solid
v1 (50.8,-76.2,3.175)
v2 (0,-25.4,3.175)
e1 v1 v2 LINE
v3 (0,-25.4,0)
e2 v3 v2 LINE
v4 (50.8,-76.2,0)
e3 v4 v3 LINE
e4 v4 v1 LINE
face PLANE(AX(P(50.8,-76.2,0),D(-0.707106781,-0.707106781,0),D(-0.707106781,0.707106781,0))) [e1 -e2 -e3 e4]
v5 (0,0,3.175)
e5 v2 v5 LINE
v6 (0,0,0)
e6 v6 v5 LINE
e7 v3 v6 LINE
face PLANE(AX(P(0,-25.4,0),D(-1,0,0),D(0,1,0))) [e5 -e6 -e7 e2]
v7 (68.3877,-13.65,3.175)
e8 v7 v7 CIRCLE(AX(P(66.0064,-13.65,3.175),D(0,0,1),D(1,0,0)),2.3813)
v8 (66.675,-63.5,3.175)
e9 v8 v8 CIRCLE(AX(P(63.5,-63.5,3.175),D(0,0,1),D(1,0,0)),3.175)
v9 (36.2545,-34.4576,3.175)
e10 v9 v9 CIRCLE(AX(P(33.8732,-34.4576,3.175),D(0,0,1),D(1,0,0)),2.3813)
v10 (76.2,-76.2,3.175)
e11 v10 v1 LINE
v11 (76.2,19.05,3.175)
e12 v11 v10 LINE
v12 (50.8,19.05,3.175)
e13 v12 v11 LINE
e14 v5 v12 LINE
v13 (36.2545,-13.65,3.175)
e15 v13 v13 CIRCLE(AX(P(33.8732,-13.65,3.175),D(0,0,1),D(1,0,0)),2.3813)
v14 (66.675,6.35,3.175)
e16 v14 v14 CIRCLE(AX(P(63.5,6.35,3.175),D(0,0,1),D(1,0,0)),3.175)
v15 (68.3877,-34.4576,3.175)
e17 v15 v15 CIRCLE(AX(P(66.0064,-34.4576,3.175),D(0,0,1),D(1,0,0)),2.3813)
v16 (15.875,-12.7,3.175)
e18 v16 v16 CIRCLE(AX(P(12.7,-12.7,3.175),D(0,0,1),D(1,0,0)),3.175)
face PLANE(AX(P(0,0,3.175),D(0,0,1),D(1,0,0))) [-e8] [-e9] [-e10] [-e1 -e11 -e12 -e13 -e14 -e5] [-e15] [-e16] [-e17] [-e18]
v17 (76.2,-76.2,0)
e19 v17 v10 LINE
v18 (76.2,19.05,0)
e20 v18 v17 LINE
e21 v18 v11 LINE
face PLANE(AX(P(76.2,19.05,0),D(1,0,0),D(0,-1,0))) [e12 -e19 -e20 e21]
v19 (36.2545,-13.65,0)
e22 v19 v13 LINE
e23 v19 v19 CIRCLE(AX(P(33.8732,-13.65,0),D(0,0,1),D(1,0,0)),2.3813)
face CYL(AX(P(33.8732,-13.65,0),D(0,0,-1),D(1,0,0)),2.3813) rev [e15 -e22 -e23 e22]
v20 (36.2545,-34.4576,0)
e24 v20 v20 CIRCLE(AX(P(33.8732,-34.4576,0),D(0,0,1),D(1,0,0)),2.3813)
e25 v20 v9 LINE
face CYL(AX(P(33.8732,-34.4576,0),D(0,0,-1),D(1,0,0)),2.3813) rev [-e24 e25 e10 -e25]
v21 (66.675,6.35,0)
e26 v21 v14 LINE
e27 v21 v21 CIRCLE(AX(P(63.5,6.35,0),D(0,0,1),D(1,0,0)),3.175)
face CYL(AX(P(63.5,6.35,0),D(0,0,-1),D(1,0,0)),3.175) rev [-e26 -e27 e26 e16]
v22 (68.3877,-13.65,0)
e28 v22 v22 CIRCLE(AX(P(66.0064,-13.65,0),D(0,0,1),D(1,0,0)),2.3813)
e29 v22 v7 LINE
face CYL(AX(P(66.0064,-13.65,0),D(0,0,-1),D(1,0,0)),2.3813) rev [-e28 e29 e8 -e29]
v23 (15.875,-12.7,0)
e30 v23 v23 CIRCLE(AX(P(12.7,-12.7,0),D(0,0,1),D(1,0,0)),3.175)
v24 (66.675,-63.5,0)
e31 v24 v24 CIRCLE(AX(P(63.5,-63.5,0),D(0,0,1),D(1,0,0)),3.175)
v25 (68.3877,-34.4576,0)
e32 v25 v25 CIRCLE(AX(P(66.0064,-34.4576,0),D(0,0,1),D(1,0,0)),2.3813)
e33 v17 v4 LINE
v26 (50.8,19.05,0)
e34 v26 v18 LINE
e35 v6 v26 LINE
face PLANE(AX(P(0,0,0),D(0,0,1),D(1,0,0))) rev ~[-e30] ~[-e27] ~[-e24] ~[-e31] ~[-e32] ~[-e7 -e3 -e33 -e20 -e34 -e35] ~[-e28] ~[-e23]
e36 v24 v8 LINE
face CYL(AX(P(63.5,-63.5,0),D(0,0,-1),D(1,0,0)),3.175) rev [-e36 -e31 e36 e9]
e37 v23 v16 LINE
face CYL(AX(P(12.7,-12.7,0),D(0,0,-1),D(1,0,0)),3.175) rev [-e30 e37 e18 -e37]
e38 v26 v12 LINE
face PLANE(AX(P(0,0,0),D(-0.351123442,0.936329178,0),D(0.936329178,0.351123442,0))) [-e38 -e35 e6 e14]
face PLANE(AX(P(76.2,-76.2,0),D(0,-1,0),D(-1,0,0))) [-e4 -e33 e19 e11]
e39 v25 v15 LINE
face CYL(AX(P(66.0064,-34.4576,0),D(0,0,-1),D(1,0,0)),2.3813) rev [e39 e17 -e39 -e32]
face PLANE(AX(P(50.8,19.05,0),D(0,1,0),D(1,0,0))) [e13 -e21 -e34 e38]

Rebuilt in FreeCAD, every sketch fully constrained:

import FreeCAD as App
import Part
import Sketcher
Q = App.Units.Quantity


def add_polygon(sketch, points):
    """Adds a closed chain of lines whose ends are joined by coincident constraints."""
    first, n = sketch.GeometryCount, len(points)
    for a, b in zip(points, points[1:] + points[:1]):
        sketch.addGeometry(Part.LineSegment(App.Vector(*a, 0), App.Vector(*b, 0)), False)
    for i in range(n):
        sketch.addConstraint(Sketcher.Constraint("Coincident", first + i, 2, first + (i + 1) % n, 1))

doc = App.newDocument("Part")
body = doc.addObject("PartDesign::Body", "Body")

# Sketch on XY plane
sketch1 = body.newObject("Sketcher::SketchObject", "Sketch")
sketch1.AttachmentSupport = (doc.getObject("XY_Plane"), [""])
sketch1.MapMode = "FlatFace"
add_polygon(sketch1, [(50.8, 19.05), (0, 0), (0, -25.4), (50.8, -76.2), (76.2, -76.2), (76.2, 19.05)])  # lines 0-5
sketch1.addGeometry(Part.Circle(App.Vector(33.8732, -34.4576, 0), App.Vector(0, 0, 1), 2.3813), False)  # 6
sketch1.addGeometry(Part.Circle(App.Vector(63.5, -63.5, 0), App.Vector(0, 0, 1), 3.175), False)  # 7
sketch1.addGeometry(Part.Circle(App.Vector(66.0064, -34.4576, 0), App.Vector(0, 0, 1), 2.3813), False)  # 8
sketch1.addGeometry(Part.Circle(App.Vector(12.7, -12.7, 0), App.Vector(0, 0, 1), 3.175), False)  # 9
sketch1.addGeometry(Part.Circle(App.Vector(33.8732, -13.65, 0), App.Vector(0, 0, 1), 2.3813), False)  # 10
sketch1.addGeometry(Part.Circle(App.Vector(66.0064, -13.65, 0), App.Vector(0, 0, 1), 2.3813), False)  # 11
sketch1.addGeometry(Part.Circle(App.Vector(63.5, 6.35, 0), App.Vector(0, 0, 1), 3.175), False)  # 12
sketch1.addConstraint([
    Sketcher.Constraint("Vertical", 1),
    Sketcher.Constraint("Horizontal", 3),
    Sketcher.Constraint("Vertical", 4),
    Sketcher.Constraint("Horizontal", 5),
    Sketcher.Constraint("Coincident", 0, 2, -1, 1),
    Sketcher.Constraint("Equal", 6, 8),
    Sketcher.Constraint("Equal", 7, 9),
    Sketcher.Constraint("Equal", 8, 10),
    Sketcher.Constraint("Equal", 10, 11),
    Sketcher.Constraint("Equal", 9, 12),
    Sketcher.Constraint("Horizontal", 6, 3, 8, 3),
    Sketcher.Constraint("Horizontal", 10, 3, 11, 3),
    Sketcher.Constraint("Vertical", 6, 3, 10, 3),
    Sketcher.Constraint("Vertical", 8, 3, 11, 3),
    Sketcher.Constraint("Vertical", 7, 3, 12, 3),
    Sketcher.Constraint("Vertical", 2, 2, 5, 2),
    Sketcher.Constraint("Equal", 5, 1),
    Sketcher.Constraint("Diameter", 7, Q("0.25 in")),
    Sketcher.Constraint("DistanceX", 3, 1, 3, 2, Q("1 in")),
    Sketcher.Constraint("Diameter", 6, Q("0.1875 in")),
    Sketcher.Constraint("DistanceY", 2, 2, -1, 1, Q("3 in")),
    Sketcher.Constraint("DistanceX", -1, 1, 3, 2, Q("3 in")),
    Sketcher.Constraint("DistanceY", 4, 1, 4, 2, Q("3.75 in")),
    Sketcher.Constraint("DistanceX", -1, 1, 9, 3, Q("0.5 in")),
    Sketcher.Constraint("DistanceY", 9, 3, -1, 1, Q("0.5 in")),
    Sketcher.Constraint("DistanceX", 2, 2, 7, 3, Q("0.5 in")),
    Sketcher.Constraint("DistanceY", 2, 2, 7, 3, Q("0.5 in")),
    Sketcher.Constraint("DistanceY", 12, 3, 4, 2, Q("0.5 in")),
    Sketcher.Constraint("DistanceX", 8, 3, 3, 2, 10.1936),
    Sketcher.Constraint("DistanceX", -1, 1, 6, 3, Q("1.3336 in")),
    Sketcher.Constraint("DistanceY", 6, 3, -1, 1, Q("1.3566 in")),
    Sketcher.Constraint("DistanceY", 10, 3, -1, 1, Q("0.5374 in")),
])
pad1 = body.newObject("PartDesign::Pad", "Pad")
pad1.Profile = sketch1
pad1.Length = Q("0.125 in")

doc.recompute()
